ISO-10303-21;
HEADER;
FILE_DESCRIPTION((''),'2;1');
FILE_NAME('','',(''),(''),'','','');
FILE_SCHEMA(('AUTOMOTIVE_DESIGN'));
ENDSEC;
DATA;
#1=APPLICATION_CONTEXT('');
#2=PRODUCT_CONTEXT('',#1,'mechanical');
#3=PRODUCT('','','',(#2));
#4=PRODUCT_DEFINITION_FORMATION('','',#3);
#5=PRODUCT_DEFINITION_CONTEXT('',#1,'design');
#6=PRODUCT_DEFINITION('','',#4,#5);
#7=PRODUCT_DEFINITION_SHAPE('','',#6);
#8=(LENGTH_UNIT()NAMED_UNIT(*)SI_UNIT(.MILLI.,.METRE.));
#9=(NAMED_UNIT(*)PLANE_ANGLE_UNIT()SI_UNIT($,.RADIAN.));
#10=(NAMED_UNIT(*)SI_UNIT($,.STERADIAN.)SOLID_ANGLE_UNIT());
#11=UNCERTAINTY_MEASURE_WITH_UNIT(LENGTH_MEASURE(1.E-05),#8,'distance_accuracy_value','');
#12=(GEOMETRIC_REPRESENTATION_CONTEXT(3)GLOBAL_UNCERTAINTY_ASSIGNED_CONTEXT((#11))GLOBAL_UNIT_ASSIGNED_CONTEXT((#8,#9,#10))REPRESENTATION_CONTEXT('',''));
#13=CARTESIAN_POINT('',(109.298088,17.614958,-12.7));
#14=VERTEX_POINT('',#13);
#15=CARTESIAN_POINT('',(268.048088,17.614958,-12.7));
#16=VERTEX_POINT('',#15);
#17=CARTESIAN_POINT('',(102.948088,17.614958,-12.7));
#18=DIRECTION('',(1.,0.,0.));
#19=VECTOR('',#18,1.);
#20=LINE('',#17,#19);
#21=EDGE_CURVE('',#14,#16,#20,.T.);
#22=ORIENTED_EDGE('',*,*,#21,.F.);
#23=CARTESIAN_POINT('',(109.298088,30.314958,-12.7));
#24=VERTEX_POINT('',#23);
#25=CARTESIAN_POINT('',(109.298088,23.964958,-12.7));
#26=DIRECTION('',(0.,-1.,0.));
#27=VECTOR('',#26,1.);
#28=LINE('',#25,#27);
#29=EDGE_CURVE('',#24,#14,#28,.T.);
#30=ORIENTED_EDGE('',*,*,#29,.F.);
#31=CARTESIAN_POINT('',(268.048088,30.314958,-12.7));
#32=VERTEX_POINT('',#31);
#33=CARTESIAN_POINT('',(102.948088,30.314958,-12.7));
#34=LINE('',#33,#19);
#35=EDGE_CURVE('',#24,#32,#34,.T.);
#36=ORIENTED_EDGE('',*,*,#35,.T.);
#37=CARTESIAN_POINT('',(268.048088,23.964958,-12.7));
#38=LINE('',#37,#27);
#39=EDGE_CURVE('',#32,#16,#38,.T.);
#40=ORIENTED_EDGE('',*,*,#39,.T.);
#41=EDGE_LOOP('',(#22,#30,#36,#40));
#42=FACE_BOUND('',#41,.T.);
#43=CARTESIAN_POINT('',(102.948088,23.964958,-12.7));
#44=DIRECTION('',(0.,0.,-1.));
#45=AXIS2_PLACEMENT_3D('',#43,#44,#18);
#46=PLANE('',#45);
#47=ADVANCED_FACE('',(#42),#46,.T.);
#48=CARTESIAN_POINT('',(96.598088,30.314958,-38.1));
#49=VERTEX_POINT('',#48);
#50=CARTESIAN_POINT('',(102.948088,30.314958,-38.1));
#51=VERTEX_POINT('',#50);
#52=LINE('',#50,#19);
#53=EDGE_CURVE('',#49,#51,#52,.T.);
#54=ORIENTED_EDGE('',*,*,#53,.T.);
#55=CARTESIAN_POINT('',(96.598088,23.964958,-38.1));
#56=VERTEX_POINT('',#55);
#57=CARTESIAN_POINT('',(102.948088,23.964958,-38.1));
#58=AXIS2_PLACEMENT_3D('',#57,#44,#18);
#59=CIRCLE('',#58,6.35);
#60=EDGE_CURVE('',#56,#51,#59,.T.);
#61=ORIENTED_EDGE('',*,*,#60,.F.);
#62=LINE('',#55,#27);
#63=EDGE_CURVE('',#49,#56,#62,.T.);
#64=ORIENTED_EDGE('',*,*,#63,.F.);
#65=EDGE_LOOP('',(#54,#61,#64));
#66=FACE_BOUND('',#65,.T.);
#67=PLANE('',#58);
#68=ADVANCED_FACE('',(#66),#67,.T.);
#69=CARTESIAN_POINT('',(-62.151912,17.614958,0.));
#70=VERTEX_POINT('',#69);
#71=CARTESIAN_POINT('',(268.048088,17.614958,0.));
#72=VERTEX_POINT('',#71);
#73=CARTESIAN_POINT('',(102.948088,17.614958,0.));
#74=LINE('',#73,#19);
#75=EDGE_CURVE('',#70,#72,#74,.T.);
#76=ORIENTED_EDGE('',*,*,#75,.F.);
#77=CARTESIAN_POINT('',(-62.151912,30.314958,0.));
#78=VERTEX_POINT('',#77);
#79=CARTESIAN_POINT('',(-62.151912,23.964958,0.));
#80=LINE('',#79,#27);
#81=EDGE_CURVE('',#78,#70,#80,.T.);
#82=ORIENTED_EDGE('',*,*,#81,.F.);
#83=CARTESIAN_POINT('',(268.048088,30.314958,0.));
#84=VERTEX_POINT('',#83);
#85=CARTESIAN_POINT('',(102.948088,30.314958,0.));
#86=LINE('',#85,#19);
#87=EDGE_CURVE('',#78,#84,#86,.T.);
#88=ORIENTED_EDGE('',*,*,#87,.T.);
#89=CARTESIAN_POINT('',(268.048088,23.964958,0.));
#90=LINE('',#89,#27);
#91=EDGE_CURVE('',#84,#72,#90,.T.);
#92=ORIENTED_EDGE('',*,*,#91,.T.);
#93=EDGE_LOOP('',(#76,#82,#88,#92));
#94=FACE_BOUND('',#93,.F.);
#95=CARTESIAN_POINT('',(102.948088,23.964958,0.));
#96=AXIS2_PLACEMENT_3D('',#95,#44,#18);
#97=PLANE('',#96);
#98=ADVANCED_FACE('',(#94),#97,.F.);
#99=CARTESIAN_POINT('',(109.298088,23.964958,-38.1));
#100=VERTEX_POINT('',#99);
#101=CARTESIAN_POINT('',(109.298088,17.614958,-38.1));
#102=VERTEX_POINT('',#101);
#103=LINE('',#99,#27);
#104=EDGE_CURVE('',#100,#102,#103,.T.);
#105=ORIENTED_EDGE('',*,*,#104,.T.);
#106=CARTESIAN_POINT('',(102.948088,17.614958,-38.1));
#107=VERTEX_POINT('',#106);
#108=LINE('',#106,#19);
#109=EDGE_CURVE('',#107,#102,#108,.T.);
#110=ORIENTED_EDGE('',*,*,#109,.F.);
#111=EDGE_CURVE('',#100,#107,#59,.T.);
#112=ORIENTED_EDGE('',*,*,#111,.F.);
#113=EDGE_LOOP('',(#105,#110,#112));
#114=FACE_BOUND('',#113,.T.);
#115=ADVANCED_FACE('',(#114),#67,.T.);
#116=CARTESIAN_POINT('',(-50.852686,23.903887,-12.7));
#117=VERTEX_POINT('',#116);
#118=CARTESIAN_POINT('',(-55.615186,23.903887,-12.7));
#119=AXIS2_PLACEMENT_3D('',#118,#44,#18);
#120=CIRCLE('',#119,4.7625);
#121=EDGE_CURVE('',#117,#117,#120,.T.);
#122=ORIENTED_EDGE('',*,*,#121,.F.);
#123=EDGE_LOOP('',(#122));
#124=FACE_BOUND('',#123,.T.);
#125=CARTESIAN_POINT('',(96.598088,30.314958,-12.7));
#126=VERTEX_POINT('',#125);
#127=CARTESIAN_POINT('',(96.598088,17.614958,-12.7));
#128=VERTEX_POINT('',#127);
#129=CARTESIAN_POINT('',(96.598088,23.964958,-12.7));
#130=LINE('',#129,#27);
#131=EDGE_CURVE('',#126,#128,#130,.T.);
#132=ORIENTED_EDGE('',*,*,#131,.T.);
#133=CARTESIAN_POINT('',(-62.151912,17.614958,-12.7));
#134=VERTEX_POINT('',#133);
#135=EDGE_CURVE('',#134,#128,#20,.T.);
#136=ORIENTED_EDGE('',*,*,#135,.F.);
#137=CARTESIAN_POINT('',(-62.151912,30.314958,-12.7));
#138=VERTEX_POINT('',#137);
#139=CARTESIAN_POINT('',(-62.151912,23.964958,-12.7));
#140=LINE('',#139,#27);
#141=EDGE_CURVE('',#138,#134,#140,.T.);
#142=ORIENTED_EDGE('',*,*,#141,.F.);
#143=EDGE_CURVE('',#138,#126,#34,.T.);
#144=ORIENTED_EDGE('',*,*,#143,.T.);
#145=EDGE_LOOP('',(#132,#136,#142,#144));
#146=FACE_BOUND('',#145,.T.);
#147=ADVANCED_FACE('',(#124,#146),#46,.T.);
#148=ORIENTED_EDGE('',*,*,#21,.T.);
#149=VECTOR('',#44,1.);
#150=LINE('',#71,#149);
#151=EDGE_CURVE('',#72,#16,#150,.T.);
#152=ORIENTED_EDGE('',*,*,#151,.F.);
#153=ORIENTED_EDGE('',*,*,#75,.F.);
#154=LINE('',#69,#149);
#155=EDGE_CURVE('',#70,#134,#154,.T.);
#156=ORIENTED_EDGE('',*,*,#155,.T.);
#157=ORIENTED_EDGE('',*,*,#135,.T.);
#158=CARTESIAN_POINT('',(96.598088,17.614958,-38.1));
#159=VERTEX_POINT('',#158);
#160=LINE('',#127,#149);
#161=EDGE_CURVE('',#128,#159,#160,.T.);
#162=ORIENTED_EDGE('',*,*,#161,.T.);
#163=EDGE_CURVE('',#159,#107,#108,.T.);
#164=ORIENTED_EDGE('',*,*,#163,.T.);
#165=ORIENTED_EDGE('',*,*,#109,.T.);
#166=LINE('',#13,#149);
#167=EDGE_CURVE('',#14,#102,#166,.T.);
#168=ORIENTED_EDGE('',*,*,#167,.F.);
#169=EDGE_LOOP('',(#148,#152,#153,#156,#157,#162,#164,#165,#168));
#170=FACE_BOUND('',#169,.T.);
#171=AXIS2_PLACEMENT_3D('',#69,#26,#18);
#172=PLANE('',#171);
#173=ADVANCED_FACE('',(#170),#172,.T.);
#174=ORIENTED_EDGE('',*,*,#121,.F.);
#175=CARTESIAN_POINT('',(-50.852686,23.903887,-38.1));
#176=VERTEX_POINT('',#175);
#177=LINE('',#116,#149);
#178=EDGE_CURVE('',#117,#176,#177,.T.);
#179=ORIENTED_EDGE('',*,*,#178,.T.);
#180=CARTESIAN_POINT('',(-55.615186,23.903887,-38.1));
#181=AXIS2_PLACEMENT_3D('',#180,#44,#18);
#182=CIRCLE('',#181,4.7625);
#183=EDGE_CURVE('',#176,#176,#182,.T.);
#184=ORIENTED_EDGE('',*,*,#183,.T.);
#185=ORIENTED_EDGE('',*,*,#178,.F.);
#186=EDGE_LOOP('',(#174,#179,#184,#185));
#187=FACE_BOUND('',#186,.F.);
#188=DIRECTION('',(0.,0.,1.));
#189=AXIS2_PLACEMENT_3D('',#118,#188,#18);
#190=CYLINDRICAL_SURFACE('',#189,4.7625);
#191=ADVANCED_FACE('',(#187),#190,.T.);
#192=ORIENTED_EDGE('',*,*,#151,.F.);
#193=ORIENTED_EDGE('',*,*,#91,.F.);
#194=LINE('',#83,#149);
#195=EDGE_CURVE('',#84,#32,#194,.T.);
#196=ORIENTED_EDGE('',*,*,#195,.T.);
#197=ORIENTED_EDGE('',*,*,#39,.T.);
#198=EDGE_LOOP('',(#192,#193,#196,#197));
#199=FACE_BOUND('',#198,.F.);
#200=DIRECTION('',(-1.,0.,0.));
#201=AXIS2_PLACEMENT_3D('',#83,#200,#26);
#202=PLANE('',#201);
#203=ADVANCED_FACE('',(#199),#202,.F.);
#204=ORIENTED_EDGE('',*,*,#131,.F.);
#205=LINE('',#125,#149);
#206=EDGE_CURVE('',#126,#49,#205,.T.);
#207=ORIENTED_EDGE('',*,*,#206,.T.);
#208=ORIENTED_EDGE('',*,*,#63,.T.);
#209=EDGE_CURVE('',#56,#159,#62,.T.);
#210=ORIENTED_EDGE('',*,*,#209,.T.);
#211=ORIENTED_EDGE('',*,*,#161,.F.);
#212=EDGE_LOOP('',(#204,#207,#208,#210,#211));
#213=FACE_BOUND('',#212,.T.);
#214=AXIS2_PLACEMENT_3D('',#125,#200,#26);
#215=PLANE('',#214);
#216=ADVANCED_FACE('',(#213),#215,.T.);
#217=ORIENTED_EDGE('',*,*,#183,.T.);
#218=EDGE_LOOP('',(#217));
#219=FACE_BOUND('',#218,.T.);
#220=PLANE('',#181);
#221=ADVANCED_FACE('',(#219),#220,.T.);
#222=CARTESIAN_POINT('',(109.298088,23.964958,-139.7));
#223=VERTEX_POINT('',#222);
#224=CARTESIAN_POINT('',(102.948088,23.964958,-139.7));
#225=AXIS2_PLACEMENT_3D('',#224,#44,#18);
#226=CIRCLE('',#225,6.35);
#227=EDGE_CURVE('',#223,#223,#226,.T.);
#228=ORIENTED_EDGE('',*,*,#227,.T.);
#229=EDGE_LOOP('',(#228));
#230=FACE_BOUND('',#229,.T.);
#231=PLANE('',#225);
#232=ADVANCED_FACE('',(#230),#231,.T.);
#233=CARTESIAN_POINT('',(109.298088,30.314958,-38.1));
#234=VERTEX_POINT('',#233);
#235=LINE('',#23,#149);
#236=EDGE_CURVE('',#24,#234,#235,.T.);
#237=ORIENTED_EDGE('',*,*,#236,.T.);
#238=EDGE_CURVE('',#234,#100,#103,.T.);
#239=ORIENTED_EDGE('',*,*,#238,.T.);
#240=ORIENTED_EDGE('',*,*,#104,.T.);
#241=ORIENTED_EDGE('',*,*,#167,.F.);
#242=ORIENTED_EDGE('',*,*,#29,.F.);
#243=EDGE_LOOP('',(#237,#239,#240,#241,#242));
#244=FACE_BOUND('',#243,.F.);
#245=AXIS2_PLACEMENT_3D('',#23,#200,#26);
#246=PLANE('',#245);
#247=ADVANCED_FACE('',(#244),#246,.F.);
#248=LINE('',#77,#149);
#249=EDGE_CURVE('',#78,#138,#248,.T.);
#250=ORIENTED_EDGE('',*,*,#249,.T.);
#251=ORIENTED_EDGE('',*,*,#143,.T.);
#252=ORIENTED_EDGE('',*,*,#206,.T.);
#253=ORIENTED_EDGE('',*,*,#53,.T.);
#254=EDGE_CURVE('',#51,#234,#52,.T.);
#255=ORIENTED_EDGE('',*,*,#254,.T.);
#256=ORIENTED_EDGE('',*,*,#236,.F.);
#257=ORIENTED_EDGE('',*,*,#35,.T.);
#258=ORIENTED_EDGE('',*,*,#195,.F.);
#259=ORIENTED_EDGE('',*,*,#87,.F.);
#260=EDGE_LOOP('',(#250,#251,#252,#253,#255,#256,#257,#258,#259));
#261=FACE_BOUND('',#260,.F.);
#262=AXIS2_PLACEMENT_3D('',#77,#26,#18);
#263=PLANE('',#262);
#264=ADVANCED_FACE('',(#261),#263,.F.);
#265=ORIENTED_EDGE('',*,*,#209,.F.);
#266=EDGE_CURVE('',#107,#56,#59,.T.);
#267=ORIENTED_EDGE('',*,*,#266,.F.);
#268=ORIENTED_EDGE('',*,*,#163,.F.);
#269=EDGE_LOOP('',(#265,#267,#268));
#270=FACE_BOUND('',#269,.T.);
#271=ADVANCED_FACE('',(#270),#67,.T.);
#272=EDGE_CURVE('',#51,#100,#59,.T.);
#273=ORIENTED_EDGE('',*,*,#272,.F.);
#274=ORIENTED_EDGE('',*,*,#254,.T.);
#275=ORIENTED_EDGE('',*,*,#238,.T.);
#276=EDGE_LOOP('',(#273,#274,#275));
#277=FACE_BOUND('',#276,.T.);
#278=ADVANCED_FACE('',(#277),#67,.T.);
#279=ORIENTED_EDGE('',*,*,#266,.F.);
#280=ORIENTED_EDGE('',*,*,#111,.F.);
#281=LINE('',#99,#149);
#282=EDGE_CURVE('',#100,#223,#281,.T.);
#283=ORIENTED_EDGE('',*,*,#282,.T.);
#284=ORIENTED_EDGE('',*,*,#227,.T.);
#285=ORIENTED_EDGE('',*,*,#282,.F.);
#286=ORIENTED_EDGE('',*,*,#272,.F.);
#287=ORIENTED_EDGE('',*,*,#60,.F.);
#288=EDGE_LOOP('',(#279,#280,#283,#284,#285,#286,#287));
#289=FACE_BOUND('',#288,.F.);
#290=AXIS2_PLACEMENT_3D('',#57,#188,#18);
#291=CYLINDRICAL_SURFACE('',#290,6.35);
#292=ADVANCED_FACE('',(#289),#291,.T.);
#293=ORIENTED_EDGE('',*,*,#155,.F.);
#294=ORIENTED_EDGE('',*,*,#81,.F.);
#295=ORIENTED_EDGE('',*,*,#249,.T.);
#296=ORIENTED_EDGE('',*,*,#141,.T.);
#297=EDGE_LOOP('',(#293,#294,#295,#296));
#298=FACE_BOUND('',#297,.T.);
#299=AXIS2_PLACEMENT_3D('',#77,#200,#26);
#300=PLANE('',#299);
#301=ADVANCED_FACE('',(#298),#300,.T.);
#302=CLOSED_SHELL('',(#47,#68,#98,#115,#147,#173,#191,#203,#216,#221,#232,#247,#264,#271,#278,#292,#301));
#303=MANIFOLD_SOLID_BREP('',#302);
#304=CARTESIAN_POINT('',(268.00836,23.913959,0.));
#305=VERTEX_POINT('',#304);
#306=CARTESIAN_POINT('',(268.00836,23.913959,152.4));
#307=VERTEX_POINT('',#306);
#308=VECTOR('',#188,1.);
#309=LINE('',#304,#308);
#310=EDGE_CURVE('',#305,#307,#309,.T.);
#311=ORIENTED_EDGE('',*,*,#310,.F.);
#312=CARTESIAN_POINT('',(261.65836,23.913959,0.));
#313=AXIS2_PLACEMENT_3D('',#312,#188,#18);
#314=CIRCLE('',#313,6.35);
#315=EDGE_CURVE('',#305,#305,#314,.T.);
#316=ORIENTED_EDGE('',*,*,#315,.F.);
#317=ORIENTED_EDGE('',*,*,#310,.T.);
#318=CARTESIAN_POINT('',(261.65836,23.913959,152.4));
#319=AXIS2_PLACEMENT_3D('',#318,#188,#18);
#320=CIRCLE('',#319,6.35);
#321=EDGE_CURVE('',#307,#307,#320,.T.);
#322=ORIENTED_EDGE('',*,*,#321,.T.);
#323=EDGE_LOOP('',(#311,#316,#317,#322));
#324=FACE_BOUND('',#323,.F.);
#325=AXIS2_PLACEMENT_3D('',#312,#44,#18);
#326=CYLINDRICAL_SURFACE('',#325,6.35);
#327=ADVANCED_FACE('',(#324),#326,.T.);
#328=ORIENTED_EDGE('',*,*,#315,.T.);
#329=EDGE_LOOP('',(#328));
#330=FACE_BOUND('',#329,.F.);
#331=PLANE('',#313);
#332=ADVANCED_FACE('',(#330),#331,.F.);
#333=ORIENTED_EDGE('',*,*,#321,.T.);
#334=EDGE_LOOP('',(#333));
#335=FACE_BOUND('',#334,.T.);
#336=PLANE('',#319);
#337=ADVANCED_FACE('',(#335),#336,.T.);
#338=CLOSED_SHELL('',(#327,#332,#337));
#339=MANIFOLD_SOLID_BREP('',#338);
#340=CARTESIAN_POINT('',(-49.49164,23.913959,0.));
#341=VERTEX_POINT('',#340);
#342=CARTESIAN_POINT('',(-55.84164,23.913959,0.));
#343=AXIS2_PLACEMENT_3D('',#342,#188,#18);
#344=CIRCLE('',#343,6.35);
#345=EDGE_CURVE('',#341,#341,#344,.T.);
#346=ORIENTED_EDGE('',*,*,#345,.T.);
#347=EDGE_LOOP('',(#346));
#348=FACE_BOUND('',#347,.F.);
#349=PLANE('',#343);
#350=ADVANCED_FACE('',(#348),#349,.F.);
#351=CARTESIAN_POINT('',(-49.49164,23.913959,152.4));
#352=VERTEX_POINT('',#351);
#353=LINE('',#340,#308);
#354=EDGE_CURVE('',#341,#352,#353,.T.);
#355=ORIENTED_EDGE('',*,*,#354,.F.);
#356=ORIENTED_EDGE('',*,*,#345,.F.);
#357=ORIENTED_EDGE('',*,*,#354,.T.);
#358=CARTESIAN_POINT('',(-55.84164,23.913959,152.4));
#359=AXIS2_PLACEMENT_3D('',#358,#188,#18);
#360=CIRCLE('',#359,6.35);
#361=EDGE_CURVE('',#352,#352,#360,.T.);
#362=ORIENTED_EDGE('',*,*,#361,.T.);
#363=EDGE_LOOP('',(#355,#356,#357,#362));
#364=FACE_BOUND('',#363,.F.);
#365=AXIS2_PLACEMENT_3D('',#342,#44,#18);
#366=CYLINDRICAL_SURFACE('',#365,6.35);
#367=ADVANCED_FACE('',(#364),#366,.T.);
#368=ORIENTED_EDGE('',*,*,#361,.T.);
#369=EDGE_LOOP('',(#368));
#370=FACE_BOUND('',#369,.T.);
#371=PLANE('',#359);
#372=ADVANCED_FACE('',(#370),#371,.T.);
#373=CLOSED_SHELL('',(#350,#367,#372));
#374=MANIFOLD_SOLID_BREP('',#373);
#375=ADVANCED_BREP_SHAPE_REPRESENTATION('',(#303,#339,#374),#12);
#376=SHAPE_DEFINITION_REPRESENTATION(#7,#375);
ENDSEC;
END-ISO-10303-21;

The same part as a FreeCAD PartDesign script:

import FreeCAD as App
import Part
import Sketcher
Q = App.Units.Quantity

doc = App.newDocument("Part")
body = doc.addObject("PartDesign::Body", "Body")
body.AllowCompound = True

sketch1 = body.newObject("Sketcher::SketchObject", "Sketch")
sketch1.AttachmentSupport = (doc.getObject("XY_Plane"), [""])
sketch1.MapMode = "FlatFace"
sketch1.addGeometry(Part.Circle(App.Vector(262, 24, 0), App.Vector(0, 0, 1), 6), False)
sketch1.addGeometry(Part.Circle(App.Vector(-56, 24, 0), App.Vector(0, 0, 1), 6), False)
sketch1.addConstraint(Sketcher.Constraint("Equal", 0, 1))
sketch1.addConstraint(Sketcher.Constraint("Horizontal", 0, 3, 1, 3))
sketch1.addConstraint(Sketcher.Constraint("Diameter", 0, Q("0.5 in")))
sketch1.addConstraint(Sketcher.Constraint("DistanceX", 1, 3, 0, 3, Q("12.5 in")))
sketch1.addConstraint(Sketcher.Constraint("DistanceX", -1, 1, 0, 3, 261.65836))
sketch1.addConstraint(Sketcher.Constraint("DistanceY", -1, 1, 0, 3, 23.913959))
pad1 = body.newObject("PartDesign::Pad", "Pad")
pad1.Profile = sketch1
pad1.Length = Q("6 in")
body2 = doc.addObject("PartDesign::Body", "Body001")

sketch2 = body2.newObject("Sketcher::SketchObject", "Sketch001")
sketch2.AttachmentSupport = (doc.getObject("XY_Plane001"), [""])
sketch2.MapMode = "FlatFace"
sketch2.addGeometry(Part.LineSegment(App.Vector(-62, 18, 0), App.Vector(-62, 30, 0)), False)
sketch2.addGeometry(Part.LineSegment(App.Vector(-62, 30, 0), App.Vector(268, 30, 0)), False)
sketch2.addGeometry(Part.LineSegment(App.Vector(268, 30, 0), App.Vector(268, 18, 0)), False)
sketch2.addGeometry(Part.LineSegment(App.Vector(268, 18, 0), App.Vector(-62, 18, 0)), False)
sketch2.addConstraint(Sketcher.Constraint("Coincident", 0, 2, 1, 1))
sketch2.addConstraint(Sketcher.Constraint("Coincident", 1, 2, 2, 1))
sketch2.addConstraint(Sketcher.Constraint("Coincident", 2, 2, 3, 1))
sketch2.addConstraint(Sketcher.Constraint("Coincident", 3, 2, 0, 1))
sketch2.addConstraint(Sketcher.Constraint("Vertical", 0))
sketch2.addConstraint(Sketcher.Constraint("Horizontal", 1))
sketch2.addConstraint(Sketcher.Constraint("Vertical", 2))
sketch2.addConstraint(Sketcher.Constraint("Horizontal", 3))
sketch2.addConstraint(Sketcher.Constraint("DistanceX", 1, 1, 1, 2, Q("13 in")))
sketch2.addConstraint(Sketcher.Constraint("DistanceY", 0, 1, 0, 2, Q("0.5 in")))
sketch2.addConstraint(Sketcher.Constraint("DistanceY", -1, 1, 0, 2, 30.314958))
sketch2.addConstraint(Sketcher.Constraint("DistanceX", -1, 1, 1, 2, 268.048088))
pad2 = body2.newObject("PartDesign::Pad", "Pad001")
pad2.Profile = sketch2
pad2.Length = Q("0.5 in")
pad2.Reversed = True

sketch3 = body2.newObject("Sketcher::SketchObject", "Sketch002")
sketch3.AttachmentSupport = (doc.getObject("XY_Plane001"), [""])
sketch3.MapMode = "FlatFace"
sketch3.AttachmentOffset = App.Placement(App.Vector(0, 0, -0.5 * 25.4), App.Rotation())
sketch3.addGeometry(Part.Circle(App.Vector(-55.6, 23.9, 0), App.Vector(0, 0, 1), 4.8), False)
sketch3.addConstraint(Sketcher.Constraint("Diameter", 0, Q("0.375 in")))
sketch3.addConstraint(Sketcher.Constraint("DistanceX", 0, 3, -1, 1, 55.615186))
sketch3.addConstraint(Sketcher.Constraint("DistanceY", -1, 1, 0, 3, 23.903887))
pad3 = body2.newObject("PartDesign::Pad", "Pad002")
pad3.Profile = sketch3
pad3.Length = Q("1 in")
pad3.Reversed = True

sketch4 = body2.newObject("Sketcher::SketchObject", "Sketch003")
sketch4.AttachmentSupport = (doc.getObject("XY_Plane001"), [""])
sketch4.MapMode = "FlatFace"
sketch4.AttachmentOffset = App.Placement(App.Vector(0, 0, -0.5 * 25.4), App.Rotation())
sketch4.addGeometry(Part.LineSegment(App.Vector(97, 18, 0), App.Vector(97, 30, 0)), False)
sketch4.addGeometry(Part.LineSegment(App.Vector(97, 30, 0), App.Vector(109, 30, 0)), False)
sketch4.addGeometry(Part.LineSegment(App.Vector(109, 30, 0), App.Vector(109, 18, 0)), False)
sketch4.addGeometry(Part.LineSegment(App.Vector(109, 18, 0), App.Vector(97, 18, 0)), False)
sketch4.addConstraint(Sketcher.Constraint("Coincident", 0, 2, 1, 1))
sketch4.addConstraint(Sketcher.Constraint("Coincident", 1, 2, 2, 1))
sketch4.addConstraint(Sketcher.Constraint("Coincident", 2, 2, 3, 1))
sketch4.addConstraint(Sketcher.Constraint("Coincident", 3, 2, 0, 1))
sketch4.addConstraint(Sketcher.Constraint("Vertical", 0))
sketch4.addConstraint(Sketcher.Constraint("Horizontal", 1))
sketch4.addConstraint(Sketcher.Constraint("Vertical", 2))
sketch4.addConstraint(Sketcher.Constraint("Horizontal", 3))
sketch4.addConstraint(Sketcher.Constraint("Equal", 3, 0))
sketch4.addConstraint(Sketcher.Constraint("DistanceX", 1, 1, 1, 2, Q("0.5 in")))
sketch4.addConstraint(Sketcher.Constraint("DistanceX", -1, 1, 0, 2, 96.598088))
sketch4.addConstraint(Sketcher.Constraint("DistanceY", -1, 1, 0, 2, 30.314958))
pad4 = body2.newObject("PartDesign::Pad", "Pad003")
pad4.Profile = sketch4
pad4.Length = Q("1 in")
pad4.Reversed = True

sketch5 = body2.newObject("Sketcher::SketchObject", "Sketch004")
sketch5.AttachmentSupport = (doc.getObject("XY_Plane001"), [""])
sketch5.MapMode = "FlatFace"
sketch5.AttachmentOffset = App.Placement(App.Vector(0, 0, -1.5 * 25.4), App.Rotation())
sketch5.addGeometry(Part.Circle(App.Vector(103, 24, 0), App.Vector(0, 0, 1), 6), False)
sketch5.addConstraint(Sketcher.Constraint("Diameter", 0, Q("0.5 in")))
sketch5.addConstraint(Sketcher.Constraint("DistanceX", -1, 1, 0, 3, 102.948088))
sketch5.addConstraint(Sketcher.Constraint("DistanceY", -1, 1, 0, 3, 23.964958))
pad5 = body2.newObject("PartDesign::Pad", "Pad004")
pad5.Profile = sketch5
pad5.Length = Q("4 in")
pad5.Reversed = True

doc.recompute()
